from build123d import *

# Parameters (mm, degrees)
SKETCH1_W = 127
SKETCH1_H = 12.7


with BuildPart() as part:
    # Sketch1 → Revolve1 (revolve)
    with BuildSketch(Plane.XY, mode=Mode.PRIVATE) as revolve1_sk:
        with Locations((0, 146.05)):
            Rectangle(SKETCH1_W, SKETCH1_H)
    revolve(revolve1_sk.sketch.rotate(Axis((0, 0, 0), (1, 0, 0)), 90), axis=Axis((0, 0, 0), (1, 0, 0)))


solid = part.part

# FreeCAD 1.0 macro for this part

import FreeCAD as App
import Part
import Sketcher

V = App.Vector
Q = App.Units.Quantity

doc = App.newDocument("Part")
body = doc.addObject("PartDesign::Body", "Body")

sketch1 = doc.addObject("Sketcher::SketchObject", "Sketch")
body.addObject(sketch1)
sketch1.AttachmentSupport = (doc.XY_Plane, [""])
sketch1.MapMode = "FlatFace"
sketch1.addGeometry([
    Part.LineSegment(V(-63.5, 152.4, 0), V(-63.5, 139.7, 0)),
    Part.LineSegment(V(-63.5, 139.7, 0), V(63.5, 139.7, 0)),
    Part.LineSegment(V(63.5, 139.7, 0), V(63.5, 152.4, 0)),
    Part.LineSegment(V(63.5, 152.4, 0), V(-63.5, 152.4, 0)),
], False)
sketch1.addConstraint([
    Sketcher.Constraint("Coincident", 0, 2, 1, 1),
    Sketcher.Constraint("Coincident", 1, 2, 2, 1),
    Sketcher.Constraint("Coincident", 2, 2, 3, 1),
    Sketcher.Constraint("Coincident", 3, 2, 0, 1),
    Sketcher.Constraint("Vertical", 0),
    Sketcher.Constraint("Horizontal", 1),
    Sketcher.Constraint("Vertical", 2),
    Sketcher.Constraint("Horizontal", 3),
    Sketcher.Constraint("DistanceX", 1, 1, 1, 2, Q("5 in")),
    Sketcher.Constraint("DistanceY", 0, 2, 0, 1, Q("0.5 in")),
    Sketcher.Constraint("DistanceY", -1, 1, 2, 2, Q("6 in")),
    Sketcher.Constraint("DistanceX", 0, 2, -1, 1, Q("2.5 in")),
])
revolution = doc.addObject("PartDesign::Revolution", "Revolution")
body.addObject(revolution)
revolution.Profile = sketch1
revolution.ReferenceAxis = (sketch1, ["H_Axis"])
revolution.Angle = 360

doc.recompute()
